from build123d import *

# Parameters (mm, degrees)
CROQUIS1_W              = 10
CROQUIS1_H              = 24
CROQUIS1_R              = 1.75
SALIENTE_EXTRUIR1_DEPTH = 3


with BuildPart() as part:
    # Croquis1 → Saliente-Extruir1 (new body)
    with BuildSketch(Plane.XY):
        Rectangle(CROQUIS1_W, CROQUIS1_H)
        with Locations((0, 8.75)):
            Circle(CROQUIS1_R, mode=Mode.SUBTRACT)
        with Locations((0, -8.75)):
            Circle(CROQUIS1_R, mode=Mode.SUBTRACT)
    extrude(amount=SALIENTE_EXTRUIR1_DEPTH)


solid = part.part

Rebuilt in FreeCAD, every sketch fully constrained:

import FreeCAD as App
import Part
import Sketcher

doc = App.newDocument("Part")
body = doc.addObject("PartDesign::Body", "Body")

sketch1 = body.newObject("Sketcher::SketchObject", "Sketch")
sketch1.AttachmentSupport = (doc.getObject("XY_Plane"), [""])
sketch1.MapMode = "FlatFace"
sketch1.addGeometry(Part.LineSegment(App.Vector(-5, 12, 0), App.Vector(-5, -12, 0)), False)
sketch1.addGeometry(Part.LineSegment(App.Vector(-5, -12, 0), App.Vector(5, -12, 0)), False)
sketch1.addGeometry(Part.LineSegment(App.Vector(5, -12, 0), App.Vector(5, 12, 0)), False)
sketch1.addGeometry(Part.LineSegment(App.Vector(5, 12, 0), App.Vector(-5, 12, 0)), False)
sketch1.addGeometry(Part.Circle(App.Vector(0, -8.8, 0), App.Vector(0, 0, 1), 1.8), False)
sketch1.addGeometry(Part.Circle(App.Vector(0, 8.8, 0), App.Vector(0, 0, 1), 1.8), False)
sketch1.addConstraint(Sketcher.Constraint("Coincident", 0, 2, 1, 1))
sketch1.addConstraint(Sketcher.Constraint("Coincident", 1, 2, 2, 1))
sketch1.addConstraint(Sketcher.Constraint("Coincident", 2, 2, 3, 1))
sketch1.addConstraint(Sketcher.Constraint("Coincident", 3, 2, 0, 1))
sketch1.addConstraint(Sketcher.Constraint("Vertical", 0))
sketch1.addConstraint(Sketcher.Constraint("Horizontal", 1))
sketch1.addConstraint(Sketcher.Constraint("Vertical", 2))
sketch1.addConstraint(Sketcher.Constraint("Horizontal", 3))
sketch1.addConstraint(Sketcher.Constraint("Equal", 4, 5))
sketch1.addConstraint(Sketcher.Constraint("Symmetric", 4, 3, 5, 3, -1, 1))
sketch1.addConstraint(Sketcher.Constraint("Symmetric", 0, 2, 2, 2, -1, 1))
sketch1.addConstraint(Sketcher.Constraint("PointOnObject", 4, 3, -2))
sketch1.addConstraint(Sketcher.Constraint("Diameter", 4, 3.5))
sketch1.addConstraint(Sketcher.Constraint("DistanceX", 1, 1, 1, 2, 10.0))
sketch1.addConstraint(Sketcher.Constraint("DistanceY", 0, 2, 0, 1, 24.0))
sketch1.addConstraint(Sketcher.Constraint("DistanceY", 4, 3, 5, 3, 17.5))
pad1 = body.newObject("PartDesign::Pad", "Pad")
pad1.Profile = sketch1
pad1.Length = 3

doc.recompute()
